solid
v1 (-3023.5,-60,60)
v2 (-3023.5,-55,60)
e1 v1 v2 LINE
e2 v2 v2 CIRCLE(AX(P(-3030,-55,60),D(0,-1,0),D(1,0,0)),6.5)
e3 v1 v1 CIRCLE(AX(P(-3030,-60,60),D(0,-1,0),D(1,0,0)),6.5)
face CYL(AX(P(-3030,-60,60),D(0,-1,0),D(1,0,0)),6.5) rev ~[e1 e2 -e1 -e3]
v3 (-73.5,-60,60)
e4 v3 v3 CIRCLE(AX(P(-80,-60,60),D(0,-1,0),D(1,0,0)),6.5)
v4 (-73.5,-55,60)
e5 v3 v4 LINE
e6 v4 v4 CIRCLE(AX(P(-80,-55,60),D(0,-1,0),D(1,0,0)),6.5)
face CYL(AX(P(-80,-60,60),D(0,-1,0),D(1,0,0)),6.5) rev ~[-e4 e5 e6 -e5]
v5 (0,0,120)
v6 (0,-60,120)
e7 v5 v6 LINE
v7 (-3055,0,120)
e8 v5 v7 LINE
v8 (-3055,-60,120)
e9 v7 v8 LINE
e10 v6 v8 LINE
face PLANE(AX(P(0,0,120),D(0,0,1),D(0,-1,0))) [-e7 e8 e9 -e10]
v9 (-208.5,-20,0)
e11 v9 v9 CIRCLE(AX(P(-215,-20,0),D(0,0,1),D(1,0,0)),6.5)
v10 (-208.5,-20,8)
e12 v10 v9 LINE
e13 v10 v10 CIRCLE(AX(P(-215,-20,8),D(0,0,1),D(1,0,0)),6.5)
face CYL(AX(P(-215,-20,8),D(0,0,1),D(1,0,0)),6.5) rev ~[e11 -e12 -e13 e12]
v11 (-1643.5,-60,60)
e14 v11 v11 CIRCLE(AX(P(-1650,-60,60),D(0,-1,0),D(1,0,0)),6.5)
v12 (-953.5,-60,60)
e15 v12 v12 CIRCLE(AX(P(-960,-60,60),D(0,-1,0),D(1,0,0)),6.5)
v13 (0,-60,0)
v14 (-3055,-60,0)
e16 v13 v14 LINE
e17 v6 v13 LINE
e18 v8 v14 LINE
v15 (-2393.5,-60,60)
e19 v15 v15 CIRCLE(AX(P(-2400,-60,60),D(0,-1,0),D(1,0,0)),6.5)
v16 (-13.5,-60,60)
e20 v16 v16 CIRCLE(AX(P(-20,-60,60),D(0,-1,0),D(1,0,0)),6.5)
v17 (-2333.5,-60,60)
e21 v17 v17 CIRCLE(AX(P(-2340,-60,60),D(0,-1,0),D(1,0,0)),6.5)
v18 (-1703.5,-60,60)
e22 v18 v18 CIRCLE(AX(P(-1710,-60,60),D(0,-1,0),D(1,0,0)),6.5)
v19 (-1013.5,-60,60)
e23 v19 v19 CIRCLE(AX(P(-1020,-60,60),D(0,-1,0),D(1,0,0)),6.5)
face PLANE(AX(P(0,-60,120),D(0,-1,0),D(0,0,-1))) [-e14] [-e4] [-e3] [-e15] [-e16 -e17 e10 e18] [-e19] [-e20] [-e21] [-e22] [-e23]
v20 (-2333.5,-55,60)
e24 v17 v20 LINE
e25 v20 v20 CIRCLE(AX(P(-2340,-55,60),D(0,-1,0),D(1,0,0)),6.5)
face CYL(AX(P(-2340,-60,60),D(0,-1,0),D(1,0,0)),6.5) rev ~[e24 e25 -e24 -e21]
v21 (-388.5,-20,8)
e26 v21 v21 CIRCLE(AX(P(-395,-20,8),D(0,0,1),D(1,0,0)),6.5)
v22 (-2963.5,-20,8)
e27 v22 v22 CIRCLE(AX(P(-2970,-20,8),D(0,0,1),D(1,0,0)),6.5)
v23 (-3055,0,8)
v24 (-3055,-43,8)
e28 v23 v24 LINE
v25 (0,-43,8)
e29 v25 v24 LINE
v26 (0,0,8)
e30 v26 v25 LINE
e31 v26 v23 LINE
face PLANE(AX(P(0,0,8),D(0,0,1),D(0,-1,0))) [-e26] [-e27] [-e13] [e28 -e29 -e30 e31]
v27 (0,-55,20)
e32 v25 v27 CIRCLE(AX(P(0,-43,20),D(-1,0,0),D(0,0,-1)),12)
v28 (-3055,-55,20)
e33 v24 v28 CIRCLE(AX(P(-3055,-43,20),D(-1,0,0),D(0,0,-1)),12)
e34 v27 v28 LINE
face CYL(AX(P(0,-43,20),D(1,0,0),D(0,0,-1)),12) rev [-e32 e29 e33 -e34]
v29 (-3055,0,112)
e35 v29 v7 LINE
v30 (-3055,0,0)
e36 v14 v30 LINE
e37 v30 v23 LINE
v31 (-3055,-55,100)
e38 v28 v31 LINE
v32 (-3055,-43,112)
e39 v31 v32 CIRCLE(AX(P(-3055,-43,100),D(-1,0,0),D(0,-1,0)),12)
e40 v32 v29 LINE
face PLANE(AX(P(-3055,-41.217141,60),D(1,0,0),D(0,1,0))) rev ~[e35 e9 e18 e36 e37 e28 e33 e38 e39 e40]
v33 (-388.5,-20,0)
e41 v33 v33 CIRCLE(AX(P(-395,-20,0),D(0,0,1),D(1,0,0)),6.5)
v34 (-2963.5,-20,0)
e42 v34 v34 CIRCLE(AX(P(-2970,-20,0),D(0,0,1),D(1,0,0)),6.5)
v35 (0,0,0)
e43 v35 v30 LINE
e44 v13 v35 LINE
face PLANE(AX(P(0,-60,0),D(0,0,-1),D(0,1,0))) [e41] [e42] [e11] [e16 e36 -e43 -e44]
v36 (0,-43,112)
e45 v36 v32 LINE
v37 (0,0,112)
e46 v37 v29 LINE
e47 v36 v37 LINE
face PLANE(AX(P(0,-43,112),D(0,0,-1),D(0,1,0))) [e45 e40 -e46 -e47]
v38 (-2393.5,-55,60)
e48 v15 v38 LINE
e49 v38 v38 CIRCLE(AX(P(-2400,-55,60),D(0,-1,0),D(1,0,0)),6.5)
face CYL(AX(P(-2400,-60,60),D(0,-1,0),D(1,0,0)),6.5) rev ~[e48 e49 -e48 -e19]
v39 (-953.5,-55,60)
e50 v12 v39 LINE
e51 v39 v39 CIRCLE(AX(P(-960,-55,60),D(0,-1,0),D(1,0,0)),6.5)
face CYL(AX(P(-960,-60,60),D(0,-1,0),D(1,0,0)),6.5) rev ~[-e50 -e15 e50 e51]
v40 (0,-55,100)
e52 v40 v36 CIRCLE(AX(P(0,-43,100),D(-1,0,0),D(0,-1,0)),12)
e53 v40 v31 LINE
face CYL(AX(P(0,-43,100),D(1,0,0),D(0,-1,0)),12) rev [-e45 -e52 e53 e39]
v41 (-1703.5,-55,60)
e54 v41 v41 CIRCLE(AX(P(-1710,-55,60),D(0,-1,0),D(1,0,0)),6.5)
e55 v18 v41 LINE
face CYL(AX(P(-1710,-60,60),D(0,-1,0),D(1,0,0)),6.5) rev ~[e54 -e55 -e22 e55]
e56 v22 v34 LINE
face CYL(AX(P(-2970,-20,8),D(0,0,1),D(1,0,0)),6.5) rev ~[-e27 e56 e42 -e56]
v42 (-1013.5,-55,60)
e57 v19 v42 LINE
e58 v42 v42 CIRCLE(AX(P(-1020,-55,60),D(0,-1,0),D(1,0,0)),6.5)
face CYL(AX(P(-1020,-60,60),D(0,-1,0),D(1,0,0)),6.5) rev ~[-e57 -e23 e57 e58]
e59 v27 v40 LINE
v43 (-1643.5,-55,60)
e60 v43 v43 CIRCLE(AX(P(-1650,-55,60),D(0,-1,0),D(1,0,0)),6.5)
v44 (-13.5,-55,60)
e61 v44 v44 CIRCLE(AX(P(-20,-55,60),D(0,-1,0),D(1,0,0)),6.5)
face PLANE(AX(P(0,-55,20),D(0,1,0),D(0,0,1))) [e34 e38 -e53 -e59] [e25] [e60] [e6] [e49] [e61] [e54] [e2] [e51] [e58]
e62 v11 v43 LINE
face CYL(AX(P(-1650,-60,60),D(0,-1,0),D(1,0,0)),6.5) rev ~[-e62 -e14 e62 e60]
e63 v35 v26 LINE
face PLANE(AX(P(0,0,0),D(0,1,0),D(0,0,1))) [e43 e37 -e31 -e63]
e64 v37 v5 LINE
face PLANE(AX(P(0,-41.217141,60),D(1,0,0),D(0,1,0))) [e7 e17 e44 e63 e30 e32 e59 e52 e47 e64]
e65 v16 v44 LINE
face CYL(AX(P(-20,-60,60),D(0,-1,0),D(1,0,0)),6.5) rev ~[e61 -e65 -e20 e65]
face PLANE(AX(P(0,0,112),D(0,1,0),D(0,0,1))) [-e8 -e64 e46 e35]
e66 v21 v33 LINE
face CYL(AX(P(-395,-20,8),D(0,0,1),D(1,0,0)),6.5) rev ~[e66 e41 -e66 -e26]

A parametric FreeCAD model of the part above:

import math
import FreeCAD as App
import Part
import Sketcher
from FreeCAD import Vector
Q = App.Units.Quantity

doc = App.newDocument("Part")
body = doc.addObject("PartDesign::Body", "Body")

sketch1 = body.newObject("Sketcher::SketchObject", "Sketch")
sketch1.AttachmentSupport = (doc.getObject("YZ_Plane"), [""])
sketch1.MapMode = "FlatFace"
sketch1.addGeometry([
    Part.LineSegment(Vector(-60, 0, 0), Vector(0, 0, 0)),
    Part.LineSegment(Vector(0, 0, 0), Vector(0, 8, 0)),
    Part.LineSegment(Vector(0, 8, 0), Vector(-43, 8, 0)),
    Part.ArcOfCircle(Part.Circle(Vector(-43, 20, 0), Vector(0, 0, 1), 12), math.radians(180), math.radians(270)),
    Part.LineSegment(Vector(-55, 20, 0), Vector(-55, 100, 0)),
    Part.ArcOfCircle(Part.Circle(Vector(-43, 100, 0), Vector(0, 0, 1), 12), math.radians(90), math.radians(180)),
    Part.LineSegment(Vector(-43, 112, 0), Vector(0, 112, 0)),
    Part.LineSegment(Vector(0, 112, 0), Vector(0, 120, 0)),
    Part.LineSegment(Vector(0, 120, 0), Vector(-60, 120, 0)),
    Part.LineSegment(Vector(-60, 120, 0), Vector(-60, 0, 0)),
], False)
sketch1.addConstraint([
    Sketcher.Constraint("Coincident", 0, 2, 1, 1),
    Sketcher.Constraint("Coincident", 1, 2, 2, 1),
    Sketcher.Constraint("Tangent", 2, 2, 3, 2),
    Sketcher.Constraint("Tangent", 3, 1, 4, 1),
    Sketcher.Constraint("Tangent", 4, 2, 5, 2),
    Sketcher.Constraint("Tangent", 5, 1, 6, 1),
    Sketcher.Constraint("Coincident", 6, 2, 7, 1),
    Sketcher.Constraint("Coincident", 7, 2, 8, 1),
    Sketcher.Constraint("Coincident", 8, 2, 9, 1),
    Sketcher.Constraint("Coincident", 9, 2, 0, 1),
    Sketcher.Constraint("Horizontal", 0),
    Sketcher.Constraint("Vertical", 1),
    Sketcher.Constraint("Horizontal", 2),
    Sketcher.Constraint("Vertical", 4),
    Sketcher.Constraint("Horizontal", 6),
    Sketcher.Constraint("Vertical", 7),
    Sketcher.Constraint("Horizontal", 8),
    Sketcher.Constraint("Vertical", 9),
    Sketcher.Constraint("Coincident", 0, 2, -1, 1),
    Sketcher.Constraint("Equal", 3, 5),
    Sketcher.Constraint("PointOnObject", 6, 2, -2),
    Sketcher.Constraint("Equal", 1, 7),
    Sketcher.Constraint("Radius", 3, Q("12 mm")),
    Sketcher.Constraint("DistanceX", 0, 1, 0, 2, Q("60 mm")),
    Sketcher.Constraint("DistanceX", 2, 2, 2, 1, Q("43 mm")),
    Sketcher.Constraint("DistanceY", 1, 1, 1, 2, Q("8 mm")),
    Sketcher.Constraint("DistanceY", 4, 1, 4, 2, Q("80 mm")),
])
pad1 = body.newObject("PartDesign::Pad", "Pad")
pad1.Profile = sketch1
pad1.Length = 3055
pad1.Reversed = True

sketch2 = body.newObject("Sketcher::SketchObject", "Sketch001")
sketch2.AttachmentSupport = (doc.getObject("XY_Plane"), [""])
sketch2.MapMode = "FlatFace"
sketch2.AttachmentOffset = App.Placement(Vector(0, 0, 8), App.Rotation())
sketch2.addGeometry([
    Part.Circle(Vector(-215, -20, 0), Vector(0, 0, 1), 6.5),
    Part.Circle(Vector(-395, -20, 0), Vector(0, 0, 1), 6.5),
    Part.Circle(Vector(-2970, -20, 0), Vector(0, 0, 1), 6.5),
], False)
sketch2.addConstraint([
    Sketcher.Constraint("Equal", 0, 1),
    Sketcher.Constraint("Equal", 1, 2),
    Sketcher.Constraint("Horizontal", 0, 3, 1, 3),
    Sketcher.Constraint("Horizontal", 1, 3, 2, 3),
    Sketcher.Constraint("Diameter", 0, Q("13 mm")),
    Sketcher.Constraint("DistanceX", 0, 3, -1, 1, Q("215 mm")),
    Sketcher.Constraint("DistanceY", 0, 3, -1, 1, Q("20 mm")),
    Sketcher.Constraint("DistanceX", 1, 3, -1, 1, Q("395 mm")),
    Sketcher.Constraint("DistanceX", 2, 3, -1, 1, Q("2970 mm")),
])
pocket1 = body.newObject("PartDesign::Pocket", "Pocket")
pocket1.Profile = sketch2
pocket1.Type = "ThroughAll"

sketch3 = body.newObject("Sketcher::SketchObject", "Sketch002")
sketch3.AttachmentSupport = (doc.getObject("XZ_Plane"), [""])
sketch3.MapMode = "FlatFace"
sketch3.AttachmentOffset = App.Placement(Vector(0, 0, 60), App.Rotation())
sketch3.addGeometry([
    Part.Circle(Vector(-20, 60, 0), Vector(0, 0, 1), 6.5),
    Part.Circle(Vector(-80, 60, 0), Vector(0, 0, 1), 6.5),
    Part.Circle(Vector(-960, 60, 0), Vector(0, 0, 1), 6.5),
    Part.Circle(Vector(-1020, 60, 0), Vector(0, 0, 1), 6.5),
    Part.Circle(Vector(-1650, 60, 0), Vector(0, 0, 1), 6.5),
    Part.Circle(Vector(-1710, 60, 0), Vector(0, 0, 1), 6.5),
    Part.Circle(Vector(-2340, 60, 0), Vector(0, 0, 1), 6.5),
    Part.Circle(Vector(-2400, 60, 0), Vector(0, 0, 1), 6.5),
    Part.Circle(Vector(-3030, 60, 0), Vector(0, 0, 1), 6.5),
], False)
sketch3.addConstraint([
    Sketcher.Constraint("Equal", 0, 1),
    Sketcher.Constraint("Equal", 1, 2),
    Sketcher.Constraint("Equal", 2, 3),
    Sketcher.Constraint("Equal", 3, 4),
    Sketcher.Constraint("Equal", 4, 5),
    Sketcher.Constraint("Equal", 5, 6),
    Sketcher.Constraint("Equal", 6, 7),
    Sketcher.Constraint("Equal", 7, 8),
    Sketcher.Constraint("Horizontal", 0, 3, 1, 3),
    Sketcher.Constraint("Horizontal", 1, 3, 2, 3),
    Sketcher.Constraint("Horizontal", 2, 3, 3, 3),
    Sketcher.Constraint("Horizontal", 3, 3, 4, 3),
    Sketcher.Constraint("Horizontal", 4, 3, 5, 3),
    Sketcher.Constraint("Horizontal", 5, 3, 6, 3),
    Sketcher.Constraint("Horizontal", 6, 3, 7, 3),
    Sketcher.Constraint("Horizontal", 7, 3, 8, 3),
    Sketcher.Constraint("Diameter", 0, Q("13 mm")),
    Sketcher.Constraint("DistanceX", 0, 3, -1, 1, Q("20 mm")),
    Sketcher.Constraint("DistanceY", -1, 1, 0, 3, Q("60 mm")),
    Sketcher.Constraint("DistanceX", 1, 3, -1, 1, Q("80 mm")),
    Sketcher.Constraint("DistanceX", 2, 3, -1, 1, Q("960 mm")),
    Sketcher.Constraint("DistanceX", 3, 3, -1, 1, Q("1020 mm")),
    Sketcher.Constraint("DistanceX", 4, 3, -1, 1, Q("1650 mm")),
    Sketcher.Constraint("DistanceX", 5, 3, -1, 1, Q("1710 mm")),
    Sketcher.Constraint("DistanceX", 6, 3, -1, 1, Q("2340 mm")),
    Sketcher.Constraint("DistanceX", 7, 3, -1, 1, Q("2400 mm")),
    Sketcher.Constraint("DistanceX", 8, 3, -1, 1, Q("3030 mm")),
])
pocket2 = body.newObject("PartDesign::Pocket", "Pocket001")
pocket2.Profile = sketch3
pocket2.Type = "ThroughAll"

doc.recompute()
